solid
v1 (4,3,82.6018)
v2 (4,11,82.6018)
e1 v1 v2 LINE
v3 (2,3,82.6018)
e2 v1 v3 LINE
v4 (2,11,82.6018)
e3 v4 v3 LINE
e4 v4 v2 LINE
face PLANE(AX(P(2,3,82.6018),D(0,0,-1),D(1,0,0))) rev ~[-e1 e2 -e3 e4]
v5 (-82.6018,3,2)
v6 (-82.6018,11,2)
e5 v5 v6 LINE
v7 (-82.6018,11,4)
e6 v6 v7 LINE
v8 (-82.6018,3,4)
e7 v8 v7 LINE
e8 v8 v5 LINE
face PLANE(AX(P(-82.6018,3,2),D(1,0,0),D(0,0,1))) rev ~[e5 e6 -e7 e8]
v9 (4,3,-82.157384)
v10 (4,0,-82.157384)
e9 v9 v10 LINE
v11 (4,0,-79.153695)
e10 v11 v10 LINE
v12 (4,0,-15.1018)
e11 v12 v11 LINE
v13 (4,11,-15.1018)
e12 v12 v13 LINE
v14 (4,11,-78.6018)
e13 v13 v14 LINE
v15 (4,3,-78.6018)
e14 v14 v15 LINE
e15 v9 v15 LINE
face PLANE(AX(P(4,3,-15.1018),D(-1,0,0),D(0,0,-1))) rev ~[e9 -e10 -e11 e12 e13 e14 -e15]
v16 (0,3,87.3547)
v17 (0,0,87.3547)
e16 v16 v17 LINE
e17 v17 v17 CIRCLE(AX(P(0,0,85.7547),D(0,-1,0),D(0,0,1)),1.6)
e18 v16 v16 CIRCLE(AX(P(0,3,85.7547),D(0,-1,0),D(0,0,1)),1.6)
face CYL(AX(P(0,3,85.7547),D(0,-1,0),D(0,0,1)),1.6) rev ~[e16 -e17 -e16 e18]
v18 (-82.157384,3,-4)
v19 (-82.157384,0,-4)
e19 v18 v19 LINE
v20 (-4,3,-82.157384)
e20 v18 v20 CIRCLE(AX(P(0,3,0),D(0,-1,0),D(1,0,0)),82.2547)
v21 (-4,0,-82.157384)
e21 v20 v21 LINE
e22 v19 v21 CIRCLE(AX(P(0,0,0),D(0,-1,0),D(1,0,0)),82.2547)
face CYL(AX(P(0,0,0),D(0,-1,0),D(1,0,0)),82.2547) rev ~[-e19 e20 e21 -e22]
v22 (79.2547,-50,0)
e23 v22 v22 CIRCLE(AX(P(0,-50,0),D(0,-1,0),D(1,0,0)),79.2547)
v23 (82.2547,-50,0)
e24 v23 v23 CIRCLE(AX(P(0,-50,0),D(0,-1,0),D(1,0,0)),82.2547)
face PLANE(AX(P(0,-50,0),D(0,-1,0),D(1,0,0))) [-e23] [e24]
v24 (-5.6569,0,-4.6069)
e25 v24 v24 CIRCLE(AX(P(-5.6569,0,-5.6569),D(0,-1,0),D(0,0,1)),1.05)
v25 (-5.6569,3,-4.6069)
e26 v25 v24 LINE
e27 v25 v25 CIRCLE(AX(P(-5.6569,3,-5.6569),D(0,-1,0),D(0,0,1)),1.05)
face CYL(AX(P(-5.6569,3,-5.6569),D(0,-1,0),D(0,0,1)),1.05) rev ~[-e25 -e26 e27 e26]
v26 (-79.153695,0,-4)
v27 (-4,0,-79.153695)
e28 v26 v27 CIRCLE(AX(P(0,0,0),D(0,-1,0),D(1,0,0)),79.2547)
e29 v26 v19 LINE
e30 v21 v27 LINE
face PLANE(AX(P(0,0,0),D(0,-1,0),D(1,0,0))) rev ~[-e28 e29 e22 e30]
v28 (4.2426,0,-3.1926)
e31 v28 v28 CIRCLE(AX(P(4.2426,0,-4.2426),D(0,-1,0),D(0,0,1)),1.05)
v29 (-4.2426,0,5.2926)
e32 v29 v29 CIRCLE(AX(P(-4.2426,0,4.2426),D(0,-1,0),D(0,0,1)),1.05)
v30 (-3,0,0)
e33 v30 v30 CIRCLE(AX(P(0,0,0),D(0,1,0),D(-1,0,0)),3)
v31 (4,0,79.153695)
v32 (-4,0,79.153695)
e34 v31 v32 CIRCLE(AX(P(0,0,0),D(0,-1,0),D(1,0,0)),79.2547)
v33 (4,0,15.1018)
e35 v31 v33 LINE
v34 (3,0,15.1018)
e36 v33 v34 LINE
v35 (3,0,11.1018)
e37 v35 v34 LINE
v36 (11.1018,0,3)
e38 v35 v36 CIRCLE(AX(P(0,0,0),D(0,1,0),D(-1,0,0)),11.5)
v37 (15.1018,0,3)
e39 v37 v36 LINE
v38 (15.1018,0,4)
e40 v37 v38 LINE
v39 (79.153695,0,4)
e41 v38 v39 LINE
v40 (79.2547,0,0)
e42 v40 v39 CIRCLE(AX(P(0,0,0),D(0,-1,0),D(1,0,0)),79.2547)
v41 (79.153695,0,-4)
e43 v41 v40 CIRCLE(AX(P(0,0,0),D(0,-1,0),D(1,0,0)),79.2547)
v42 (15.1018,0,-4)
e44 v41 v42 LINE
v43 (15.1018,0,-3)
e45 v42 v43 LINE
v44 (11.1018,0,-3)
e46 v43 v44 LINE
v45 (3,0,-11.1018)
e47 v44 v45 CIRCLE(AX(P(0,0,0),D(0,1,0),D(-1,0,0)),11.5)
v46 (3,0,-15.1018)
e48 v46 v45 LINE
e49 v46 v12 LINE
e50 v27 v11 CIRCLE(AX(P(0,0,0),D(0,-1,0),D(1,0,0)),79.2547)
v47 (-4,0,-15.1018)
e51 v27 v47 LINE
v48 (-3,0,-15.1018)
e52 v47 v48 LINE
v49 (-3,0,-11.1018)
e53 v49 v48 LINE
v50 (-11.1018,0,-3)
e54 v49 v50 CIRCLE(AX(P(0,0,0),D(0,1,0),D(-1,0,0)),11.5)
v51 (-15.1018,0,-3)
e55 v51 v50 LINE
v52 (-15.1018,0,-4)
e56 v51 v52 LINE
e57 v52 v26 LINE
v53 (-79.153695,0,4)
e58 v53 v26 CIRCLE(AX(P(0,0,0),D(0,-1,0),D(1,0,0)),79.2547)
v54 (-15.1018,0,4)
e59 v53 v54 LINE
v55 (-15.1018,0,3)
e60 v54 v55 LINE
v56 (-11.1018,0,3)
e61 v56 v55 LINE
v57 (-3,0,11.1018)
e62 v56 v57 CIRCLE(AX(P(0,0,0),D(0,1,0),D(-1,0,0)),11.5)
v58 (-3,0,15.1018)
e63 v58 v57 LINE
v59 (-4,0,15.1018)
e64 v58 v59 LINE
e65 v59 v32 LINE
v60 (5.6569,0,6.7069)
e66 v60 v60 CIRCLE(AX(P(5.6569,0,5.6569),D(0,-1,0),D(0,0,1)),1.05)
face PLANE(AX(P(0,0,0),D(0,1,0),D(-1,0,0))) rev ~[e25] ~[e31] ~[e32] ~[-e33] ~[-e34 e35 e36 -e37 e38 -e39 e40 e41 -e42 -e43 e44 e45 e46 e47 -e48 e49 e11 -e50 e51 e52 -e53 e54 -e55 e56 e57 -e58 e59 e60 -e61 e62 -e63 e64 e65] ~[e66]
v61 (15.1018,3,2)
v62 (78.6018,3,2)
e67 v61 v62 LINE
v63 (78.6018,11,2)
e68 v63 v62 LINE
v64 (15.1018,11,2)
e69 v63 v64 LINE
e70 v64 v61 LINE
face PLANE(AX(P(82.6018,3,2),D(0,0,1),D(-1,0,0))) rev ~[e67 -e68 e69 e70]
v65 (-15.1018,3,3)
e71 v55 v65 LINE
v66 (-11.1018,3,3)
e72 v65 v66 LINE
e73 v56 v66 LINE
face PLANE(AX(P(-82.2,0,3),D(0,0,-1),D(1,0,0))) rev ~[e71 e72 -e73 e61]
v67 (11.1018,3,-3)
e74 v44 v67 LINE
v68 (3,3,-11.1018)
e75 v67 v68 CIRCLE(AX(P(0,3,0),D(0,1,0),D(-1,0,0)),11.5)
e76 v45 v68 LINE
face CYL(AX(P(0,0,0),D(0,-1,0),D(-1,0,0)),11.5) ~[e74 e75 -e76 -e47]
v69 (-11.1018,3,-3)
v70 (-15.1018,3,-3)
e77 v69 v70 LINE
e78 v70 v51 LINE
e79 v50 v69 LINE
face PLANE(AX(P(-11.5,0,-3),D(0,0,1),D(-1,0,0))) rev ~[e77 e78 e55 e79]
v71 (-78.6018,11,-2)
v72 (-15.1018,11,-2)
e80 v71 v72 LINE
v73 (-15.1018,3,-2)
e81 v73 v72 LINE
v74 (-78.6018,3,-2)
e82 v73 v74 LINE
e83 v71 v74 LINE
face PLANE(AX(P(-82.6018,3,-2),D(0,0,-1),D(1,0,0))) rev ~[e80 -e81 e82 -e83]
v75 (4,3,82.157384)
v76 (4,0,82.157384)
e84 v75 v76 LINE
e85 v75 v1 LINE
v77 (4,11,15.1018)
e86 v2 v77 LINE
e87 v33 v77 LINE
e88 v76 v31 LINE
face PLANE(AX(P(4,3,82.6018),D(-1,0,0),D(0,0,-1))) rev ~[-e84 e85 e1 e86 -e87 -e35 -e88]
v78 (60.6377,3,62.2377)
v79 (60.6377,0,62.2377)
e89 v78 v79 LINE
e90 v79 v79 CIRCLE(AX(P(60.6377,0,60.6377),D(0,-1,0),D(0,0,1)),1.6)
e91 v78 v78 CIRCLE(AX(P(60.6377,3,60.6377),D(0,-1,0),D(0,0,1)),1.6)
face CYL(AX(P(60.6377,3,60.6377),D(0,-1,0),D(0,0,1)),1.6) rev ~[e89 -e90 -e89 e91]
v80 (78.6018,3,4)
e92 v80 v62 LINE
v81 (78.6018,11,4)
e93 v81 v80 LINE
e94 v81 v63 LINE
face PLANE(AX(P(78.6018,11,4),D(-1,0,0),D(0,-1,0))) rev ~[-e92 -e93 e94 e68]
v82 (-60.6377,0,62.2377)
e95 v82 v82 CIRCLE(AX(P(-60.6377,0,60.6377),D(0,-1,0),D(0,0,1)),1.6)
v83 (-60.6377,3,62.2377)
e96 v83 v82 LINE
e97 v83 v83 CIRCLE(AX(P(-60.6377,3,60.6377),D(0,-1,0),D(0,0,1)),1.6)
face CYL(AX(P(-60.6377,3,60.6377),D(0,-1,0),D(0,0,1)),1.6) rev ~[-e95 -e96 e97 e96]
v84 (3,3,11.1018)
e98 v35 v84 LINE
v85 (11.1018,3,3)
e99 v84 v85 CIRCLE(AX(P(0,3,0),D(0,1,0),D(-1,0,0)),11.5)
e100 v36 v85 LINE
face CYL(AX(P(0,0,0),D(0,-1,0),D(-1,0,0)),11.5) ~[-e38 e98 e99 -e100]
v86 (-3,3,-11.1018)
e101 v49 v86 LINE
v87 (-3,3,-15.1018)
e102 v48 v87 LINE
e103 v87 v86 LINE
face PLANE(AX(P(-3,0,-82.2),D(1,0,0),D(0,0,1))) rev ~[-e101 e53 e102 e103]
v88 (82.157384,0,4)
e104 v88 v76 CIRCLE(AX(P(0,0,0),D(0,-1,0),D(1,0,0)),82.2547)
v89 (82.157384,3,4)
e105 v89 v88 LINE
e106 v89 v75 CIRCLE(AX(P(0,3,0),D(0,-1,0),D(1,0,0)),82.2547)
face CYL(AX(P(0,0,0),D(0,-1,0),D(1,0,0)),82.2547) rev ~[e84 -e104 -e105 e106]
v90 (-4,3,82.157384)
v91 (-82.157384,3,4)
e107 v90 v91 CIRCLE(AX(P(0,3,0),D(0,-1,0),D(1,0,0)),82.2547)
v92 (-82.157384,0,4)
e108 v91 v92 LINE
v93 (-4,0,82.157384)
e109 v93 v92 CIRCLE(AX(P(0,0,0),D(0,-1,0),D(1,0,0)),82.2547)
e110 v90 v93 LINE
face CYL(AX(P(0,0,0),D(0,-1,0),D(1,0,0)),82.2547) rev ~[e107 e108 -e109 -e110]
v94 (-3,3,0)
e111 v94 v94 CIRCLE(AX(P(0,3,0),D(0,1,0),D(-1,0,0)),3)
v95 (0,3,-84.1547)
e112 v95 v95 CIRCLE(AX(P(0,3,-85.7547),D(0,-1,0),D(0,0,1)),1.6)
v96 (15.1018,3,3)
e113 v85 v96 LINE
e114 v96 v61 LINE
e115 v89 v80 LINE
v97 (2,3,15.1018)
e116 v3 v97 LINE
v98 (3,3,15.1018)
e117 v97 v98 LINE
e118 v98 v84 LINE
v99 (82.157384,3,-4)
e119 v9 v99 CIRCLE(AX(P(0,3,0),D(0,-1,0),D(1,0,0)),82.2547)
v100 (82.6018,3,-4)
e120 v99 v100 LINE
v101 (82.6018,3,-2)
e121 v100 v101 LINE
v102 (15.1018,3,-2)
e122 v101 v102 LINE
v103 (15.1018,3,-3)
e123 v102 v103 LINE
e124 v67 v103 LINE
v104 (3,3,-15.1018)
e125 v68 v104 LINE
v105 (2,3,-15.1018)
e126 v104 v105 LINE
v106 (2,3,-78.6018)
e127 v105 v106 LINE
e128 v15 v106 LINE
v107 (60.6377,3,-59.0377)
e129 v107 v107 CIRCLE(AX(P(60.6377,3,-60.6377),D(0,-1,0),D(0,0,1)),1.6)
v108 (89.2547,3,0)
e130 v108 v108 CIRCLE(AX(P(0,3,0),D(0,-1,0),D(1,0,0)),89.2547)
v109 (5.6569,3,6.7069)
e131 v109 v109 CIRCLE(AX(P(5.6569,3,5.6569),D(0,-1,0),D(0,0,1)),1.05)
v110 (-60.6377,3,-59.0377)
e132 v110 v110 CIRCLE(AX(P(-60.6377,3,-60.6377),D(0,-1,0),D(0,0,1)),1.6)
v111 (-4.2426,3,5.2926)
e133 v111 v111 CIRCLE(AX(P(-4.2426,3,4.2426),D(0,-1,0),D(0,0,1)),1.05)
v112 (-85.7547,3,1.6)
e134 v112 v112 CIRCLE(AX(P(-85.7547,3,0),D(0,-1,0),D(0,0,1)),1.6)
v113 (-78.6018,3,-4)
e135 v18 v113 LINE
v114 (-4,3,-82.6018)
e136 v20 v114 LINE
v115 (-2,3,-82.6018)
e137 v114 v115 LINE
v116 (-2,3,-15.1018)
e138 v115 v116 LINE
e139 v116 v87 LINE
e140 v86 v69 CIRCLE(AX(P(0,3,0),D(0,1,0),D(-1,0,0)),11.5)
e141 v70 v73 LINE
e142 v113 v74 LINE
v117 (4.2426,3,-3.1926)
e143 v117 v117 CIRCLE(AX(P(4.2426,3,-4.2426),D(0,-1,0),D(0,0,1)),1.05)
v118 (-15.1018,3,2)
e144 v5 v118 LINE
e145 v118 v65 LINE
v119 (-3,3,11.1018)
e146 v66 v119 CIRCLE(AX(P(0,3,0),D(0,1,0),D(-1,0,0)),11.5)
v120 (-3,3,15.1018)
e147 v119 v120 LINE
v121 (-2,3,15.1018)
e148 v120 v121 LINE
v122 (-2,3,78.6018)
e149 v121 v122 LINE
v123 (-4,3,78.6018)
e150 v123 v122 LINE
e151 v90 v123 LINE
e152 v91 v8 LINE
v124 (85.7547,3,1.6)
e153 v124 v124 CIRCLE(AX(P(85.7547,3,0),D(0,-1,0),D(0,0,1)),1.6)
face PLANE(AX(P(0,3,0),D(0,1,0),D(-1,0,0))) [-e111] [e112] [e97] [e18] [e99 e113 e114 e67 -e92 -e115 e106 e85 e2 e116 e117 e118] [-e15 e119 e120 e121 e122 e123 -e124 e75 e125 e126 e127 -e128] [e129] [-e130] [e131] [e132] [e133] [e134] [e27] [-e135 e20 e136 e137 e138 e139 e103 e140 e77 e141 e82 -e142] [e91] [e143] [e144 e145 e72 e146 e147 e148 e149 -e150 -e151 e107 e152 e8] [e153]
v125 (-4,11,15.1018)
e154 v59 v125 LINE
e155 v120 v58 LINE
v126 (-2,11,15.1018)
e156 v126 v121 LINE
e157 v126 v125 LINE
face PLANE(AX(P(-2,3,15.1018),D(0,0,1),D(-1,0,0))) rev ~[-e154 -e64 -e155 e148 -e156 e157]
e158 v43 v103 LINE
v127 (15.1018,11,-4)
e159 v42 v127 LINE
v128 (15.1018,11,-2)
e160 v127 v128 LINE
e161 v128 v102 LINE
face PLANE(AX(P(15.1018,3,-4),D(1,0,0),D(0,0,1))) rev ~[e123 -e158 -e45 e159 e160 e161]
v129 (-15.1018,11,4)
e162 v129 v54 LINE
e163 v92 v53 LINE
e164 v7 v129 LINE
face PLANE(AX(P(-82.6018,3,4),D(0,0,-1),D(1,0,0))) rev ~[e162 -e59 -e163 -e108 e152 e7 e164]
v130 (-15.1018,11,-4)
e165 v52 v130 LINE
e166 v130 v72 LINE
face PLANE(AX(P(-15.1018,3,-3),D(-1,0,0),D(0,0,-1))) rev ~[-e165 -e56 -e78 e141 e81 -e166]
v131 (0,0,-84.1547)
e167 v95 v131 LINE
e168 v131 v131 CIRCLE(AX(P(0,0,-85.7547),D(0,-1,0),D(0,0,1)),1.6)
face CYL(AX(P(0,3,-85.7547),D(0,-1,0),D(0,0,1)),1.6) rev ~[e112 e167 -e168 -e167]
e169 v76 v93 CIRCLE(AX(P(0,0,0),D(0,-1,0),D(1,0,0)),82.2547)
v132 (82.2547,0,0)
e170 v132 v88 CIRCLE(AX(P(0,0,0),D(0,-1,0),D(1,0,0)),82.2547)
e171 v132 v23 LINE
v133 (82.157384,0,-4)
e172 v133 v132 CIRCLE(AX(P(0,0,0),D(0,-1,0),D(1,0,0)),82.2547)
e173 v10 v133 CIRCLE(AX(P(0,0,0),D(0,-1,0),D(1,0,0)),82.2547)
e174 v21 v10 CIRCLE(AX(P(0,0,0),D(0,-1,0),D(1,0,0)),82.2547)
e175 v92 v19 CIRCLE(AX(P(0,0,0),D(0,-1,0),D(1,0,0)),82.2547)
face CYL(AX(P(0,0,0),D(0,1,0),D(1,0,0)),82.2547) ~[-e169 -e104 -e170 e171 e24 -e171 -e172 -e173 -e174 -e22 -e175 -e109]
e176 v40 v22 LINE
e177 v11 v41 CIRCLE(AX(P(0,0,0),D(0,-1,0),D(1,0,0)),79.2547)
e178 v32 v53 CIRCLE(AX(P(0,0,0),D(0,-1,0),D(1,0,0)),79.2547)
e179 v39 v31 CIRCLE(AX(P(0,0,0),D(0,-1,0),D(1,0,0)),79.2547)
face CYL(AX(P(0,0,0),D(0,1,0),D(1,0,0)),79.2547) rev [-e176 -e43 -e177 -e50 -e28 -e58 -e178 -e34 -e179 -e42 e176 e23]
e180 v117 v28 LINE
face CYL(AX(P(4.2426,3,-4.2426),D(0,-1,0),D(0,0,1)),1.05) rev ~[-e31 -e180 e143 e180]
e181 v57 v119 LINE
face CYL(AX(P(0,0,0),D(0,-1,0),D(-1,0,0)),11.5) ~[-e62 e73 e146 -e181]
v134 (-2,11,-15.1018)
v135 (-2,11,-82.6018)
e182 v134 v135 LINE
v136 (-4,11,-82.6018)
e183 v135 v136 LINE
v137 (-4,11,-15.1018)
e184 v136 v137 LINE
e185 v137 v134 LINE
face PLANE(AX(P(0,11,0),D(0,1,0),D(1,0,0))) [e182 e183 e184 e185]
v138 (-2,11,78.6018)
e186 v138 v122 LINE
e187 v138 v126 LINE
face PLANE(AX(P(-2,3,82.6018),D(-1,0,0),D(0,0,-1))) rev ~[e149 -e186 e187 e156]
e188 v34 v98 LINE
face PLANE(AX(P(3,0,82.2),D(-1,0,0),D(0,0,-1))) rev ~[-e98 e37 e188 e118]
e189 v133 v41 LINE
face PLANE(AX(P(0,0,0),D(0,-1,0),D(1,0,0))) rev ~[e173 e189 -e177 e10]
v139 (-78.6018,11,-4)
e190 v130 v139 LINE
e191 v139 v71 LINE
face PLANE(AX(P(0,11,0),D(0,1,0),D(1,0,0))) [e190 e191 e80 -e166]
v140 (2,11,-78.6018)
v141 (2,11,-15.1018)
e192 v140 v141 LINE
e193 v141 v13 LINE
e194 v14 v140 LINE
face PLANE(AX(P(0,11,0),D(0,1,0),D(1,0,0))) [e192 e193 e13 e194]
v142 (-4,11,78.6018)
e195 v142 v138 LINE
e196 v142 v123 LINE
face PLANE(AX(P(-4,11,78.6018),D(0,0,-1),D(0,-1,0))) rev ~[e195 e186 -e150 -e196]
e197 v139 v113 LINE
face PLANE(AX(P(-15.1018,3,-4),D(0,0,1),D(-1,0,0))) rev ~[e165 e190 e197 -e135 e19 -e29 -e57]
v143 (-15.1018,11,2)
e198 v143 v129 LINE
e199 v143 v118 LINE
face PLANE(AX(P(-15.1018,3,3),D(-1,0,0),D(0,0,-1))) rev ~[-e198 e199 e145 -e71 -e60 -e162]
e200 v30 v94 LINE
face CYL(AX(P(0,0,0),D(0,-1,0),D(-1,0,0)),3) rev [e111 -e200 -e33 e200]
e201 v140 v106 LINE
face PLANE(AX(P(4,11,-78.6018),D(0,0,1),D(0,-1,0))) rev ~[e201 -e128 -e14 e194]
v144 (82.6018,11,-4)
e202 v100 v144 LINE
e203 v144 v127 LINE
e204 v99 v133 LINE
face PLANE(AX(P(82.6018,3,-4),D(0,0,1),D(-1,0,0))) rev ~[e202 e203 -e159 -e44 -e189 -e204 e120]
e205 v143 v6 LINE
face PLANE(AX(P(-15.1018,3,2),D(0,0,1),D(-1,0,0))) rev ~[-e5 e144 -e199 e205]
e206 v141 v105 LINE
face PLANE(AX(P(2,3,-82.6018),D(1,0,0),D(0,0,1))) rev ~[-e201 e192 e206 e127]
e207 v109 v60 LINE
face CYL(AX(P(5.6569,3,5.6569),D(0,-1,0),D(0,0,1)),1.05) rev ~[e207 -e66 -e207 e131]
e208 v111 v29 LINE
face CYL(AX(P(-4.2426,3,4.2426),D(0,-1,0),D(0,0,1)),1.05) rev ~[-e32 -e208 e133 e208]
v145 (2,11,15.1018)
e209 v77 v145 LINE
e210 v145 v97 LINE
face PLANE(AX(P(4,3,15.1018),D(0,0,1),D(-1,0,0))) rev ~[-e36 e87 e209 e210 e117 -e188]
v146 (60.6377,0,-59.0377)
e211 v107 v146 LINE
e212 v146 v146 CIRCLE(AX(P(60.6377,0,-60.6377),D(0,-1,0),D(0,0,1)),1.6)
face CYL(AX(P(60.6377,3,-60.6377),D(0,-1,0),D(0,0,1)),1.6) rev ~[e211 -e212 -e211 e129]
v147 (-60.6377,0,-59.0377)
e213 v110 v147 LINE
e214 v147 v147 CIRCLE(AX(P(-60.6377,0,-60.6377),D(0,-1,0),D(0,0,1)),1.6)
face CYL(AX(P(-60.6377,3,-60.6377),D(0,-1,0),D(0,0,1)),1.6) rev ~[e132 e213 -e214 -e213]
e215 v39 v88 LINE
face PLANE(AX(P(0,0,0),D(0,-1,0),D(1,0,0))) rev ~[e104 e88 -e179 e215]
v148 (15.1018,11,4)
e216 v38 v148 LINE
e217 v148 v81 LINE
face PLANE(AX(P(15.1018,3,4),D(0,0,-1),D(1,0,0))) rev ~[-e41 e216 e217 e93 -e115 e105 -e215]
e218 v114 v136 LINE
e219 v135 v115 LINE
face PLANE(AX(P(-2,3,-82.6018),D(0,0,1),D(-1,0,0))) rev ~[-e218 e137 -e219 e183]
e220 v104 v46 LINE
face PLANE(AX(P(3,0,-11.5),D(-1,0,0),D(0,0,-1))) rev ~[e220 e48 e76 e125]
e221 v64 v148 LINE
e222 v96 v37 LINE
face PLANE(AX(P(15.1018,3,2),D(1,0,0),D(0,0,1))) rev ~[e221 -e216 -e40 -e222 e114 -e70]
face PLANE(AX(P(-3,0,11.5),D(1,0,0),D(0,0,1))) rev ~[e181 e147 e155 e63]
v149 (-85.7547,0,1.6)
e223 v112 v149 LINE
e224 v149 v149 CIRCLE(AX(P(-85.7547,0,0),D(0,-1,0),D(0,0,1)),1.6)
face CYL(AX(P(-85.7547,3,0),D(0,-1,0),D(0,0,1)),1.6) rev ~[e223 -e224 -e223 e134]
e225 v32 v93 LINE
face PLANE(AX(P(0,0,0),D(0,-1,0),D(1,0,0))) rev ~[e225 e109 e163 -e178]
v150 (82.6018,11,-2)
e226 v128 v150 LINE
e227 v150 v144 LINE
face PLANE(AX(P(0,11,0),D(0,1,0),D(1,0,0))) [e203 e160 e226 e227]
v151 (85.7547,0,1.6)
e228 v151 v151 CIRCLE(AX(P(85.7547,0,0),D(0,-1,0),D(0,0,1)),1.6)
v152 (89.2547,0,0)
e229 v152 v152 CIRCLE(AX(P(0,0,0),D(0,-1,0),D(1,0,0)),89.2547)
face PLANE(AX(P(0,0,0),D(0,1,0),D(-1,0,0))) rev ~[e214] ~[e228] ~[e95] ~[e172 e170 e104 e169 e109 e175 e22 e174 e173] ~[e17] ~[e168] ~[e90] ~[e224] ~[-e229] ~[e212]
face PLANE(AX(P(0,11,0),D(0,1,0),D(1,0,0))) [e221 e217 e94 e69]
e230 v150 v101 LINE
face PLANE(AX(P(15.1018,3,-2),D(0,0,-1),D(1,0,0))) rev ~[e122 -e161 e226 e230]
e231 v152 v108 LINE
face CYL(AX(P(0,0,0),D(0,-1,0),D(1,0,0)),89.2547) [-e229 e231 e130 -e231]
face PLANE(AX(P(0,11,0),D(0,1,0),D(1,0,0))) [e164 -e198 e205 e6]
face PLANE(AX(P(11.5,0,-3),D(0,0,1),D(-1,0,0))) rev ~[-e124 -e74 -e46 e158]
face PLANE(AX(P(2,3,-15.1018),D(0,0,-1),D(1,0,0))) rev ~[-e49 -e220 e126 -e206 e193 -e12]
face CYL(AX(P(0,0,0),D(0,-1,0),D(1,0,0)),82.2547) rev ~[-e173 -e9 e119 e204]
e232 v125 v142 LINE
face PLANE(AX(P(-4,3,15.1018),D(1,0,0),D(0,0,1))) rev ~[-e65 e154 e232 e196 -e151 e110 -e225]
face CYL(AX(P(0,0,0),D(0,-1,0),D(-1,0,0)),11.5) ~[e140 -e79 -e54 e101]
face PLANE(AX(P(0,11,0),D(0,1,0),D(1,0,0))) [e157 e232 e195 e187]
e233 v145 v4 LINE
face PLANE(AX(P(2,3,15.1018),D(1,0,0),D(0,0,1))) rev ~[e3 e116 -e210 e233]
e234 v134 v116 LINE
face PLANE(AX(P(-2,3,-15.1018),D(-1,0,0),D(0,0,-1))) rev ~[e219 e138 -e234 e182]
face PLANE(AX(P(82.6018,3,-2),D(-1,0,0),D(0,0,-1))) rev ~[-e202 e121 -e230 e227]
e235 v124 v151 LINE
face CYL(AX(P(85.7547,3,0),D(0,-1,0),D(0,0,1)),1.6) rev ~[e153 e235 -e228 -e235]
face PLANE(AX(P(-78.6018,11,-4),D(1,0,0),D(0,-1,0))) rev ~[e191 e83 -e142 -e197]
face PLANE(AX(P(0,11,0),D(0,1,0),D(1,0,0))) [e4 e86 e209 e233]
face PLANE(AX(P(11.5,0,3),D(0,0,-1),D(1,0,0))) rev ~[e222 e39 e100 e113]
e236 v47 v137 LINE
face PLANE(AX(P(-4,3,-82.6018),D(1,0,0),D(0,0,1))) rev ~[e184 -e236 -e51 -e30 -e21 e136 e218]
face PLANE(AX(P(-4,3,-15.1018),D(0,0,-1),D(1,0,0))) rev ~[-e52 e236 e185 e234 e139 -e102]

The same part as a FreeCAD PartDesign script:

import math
import FreeCAD as App
import Part
import Sketcher
from FreeCAD import Vector


def add_polygon(sketch, points):
    """Adds a closed chain of lines whose ends are joined by coincident constraints."""
    first, n = sketch.GeometryCount, len(points)
    for a, b in zip(points, points[1:] + points[:1]):
        sketch.addGeometry(Part.LineSegment(App.Vector(*a, 0), App.Vector(*b, 0)), False)
    for i in range(n):
        sketch.addConstraint(Sketcher.Constraint("Coincident", first + i, 2, first + (i + 1) % n, 1))

doc = App.newDocument("Part")
body = doc.addObject("PartDesign::Body", "Body")

sketch1 = doc.addObject("Sketcher::SketchObject", "Sketch")
body.addObject(sketch1)
sketch1.AttachmentSupport = (doc.XZ_Plane, [""])
sketch1.MapMode = "FlatFace"
sketch1.addGeometry(Part.Circle(Vector(0, 0, 0), Vector(0, 0, 1), 11.5), False)
sketch1.addGeometry(Part.Circle(Vector(0, 0, 0), Vector(0, 0, 1), 3), False)
sketch1.addConstraint(Sketcher.Constraint("Coincident", 0, 3, -1, 1))
sketch1.addConstraint(Sketcher.Constraint("Coincident", 1, 3, -1, 1))
sketch1.addConstraint(Sketcher.Constraint("Diameter", 0, 23.0))
sketch1.addConstraint(Sketcher.Constraint("Diameter", 1, 6.0))
pad1 = doc.addObject("PartDesign::Pad", "Pad")
body.addObject(pad1)
pad1.Profile = sketch1
pad1.Length = 3
pad1.Reversed = True

sketch2 = doc.addObject("Sketcher::SketchObject", "Sketch001")
body.addObject(sketch2)
sketch2.AttachmentSupport = (doc.XZ_Plane, [""])
sketch2.MapMode = "FlatFace"
sketch2.addGeometry(Part.Circle(Vector(0, 0, 0), Vector(0, 0, 1), 89.2547), False)
sketch2.addGeometry(Part.LineSegment(Vector(11.1018, -3, 0), Vector(82.2, -3, 0)), False)
sketch2.addGeometry(Part.ArcOfCircle(Part.Circle(Vector(0, 0, 0), Vector(0, 0, 1), 82.2547), math.radians(-87.909841), math.radians(-2.090159)), False)
sketch2.addGeometry(Part.LineSegment(Vector(3, -82.2, 0), Vector(3, -11.1018, 0)), False)
sketch2.addGeometry(Part.ArcOfCircle(Part.Circle(Vector(0, 0, 0), Vector(0, 0, 1), 11.5), math.radians(-105.121667), math.radians(-74.878333)), False)
sketch2.addGeometry(Part.LineSegment(Vector(-3, -11.1018, 0), Vector(-3, -82.2, 0)), False)
sketch2.addGeometry(Part.ArcOfCircle(Part.Circle(Vector(0, 0, 0), Vector(0, 0, 1), 82.2547), math.radians(-177.909841), math.radians(-92.090159)), False)
sketch2.addGeometry(Part.LineSegment(Vector(-82.2, -3, 0), Vector(-11.1018, -3, 0)), False)
sketch2.addGeometry(Part.ArcOfCircle(Part.Circle(Vector(0, 0, 0), Vector(0, 0, 1), 11.5), math.radians(164.878333), math.radians(195.121667)), False)
sketch2.addGeometry(Part.LineSegment(Vector(-11.1018, 3, 0), Vector(-82.2, 3, 0)), False)
sketch2.addGeometry(Part.ArcOfCircle(Part.Circle(Vector(0, 0, 0), Vector(0, 0, 1), 82.2547), math.radians(92.090159), math.radians(177.909841)), False)
sketch2.addGeometry(Part.LineSegment(Vector(-3, 82.2, 0), Vector(-3, 11.1018, 0)), False)
sketch2.addGeometry(Part.ArcOfCircle(Part.Circle(Vector(0, 0, 0), Vector(0, 0, 1), 11.5), math.radians(74.878333), math.radians(105.121667)), False)
sketch2.addGeometry(Part.LineSegment(Vector(3, 11.1018, 0), Vector(3, 82.2, 0)), False)
sketch2.addGeometry(Part.ArcOfCircle(Part.Circle(Vector(0, 0, 0), Vector(0, 0, 1), 82.2547), math.radians(2.090159), math.radians(87.909841)), False)
sketch2.addGeometry(Part.LineSegment(Vector(82.2, 3, 0), Vector(11.1018, 3, 0)), False)
sketch2.addGeometry(Part.ArcOfCircle(Part.Circle(Vector(0, 0, 0), Vector(0, 0, 1), 11.5), math.radians(-15.121667), math.radians(15.121667)), False)
sketch2.addConstraint(Sketcher.Constraint("Coincident", 1, 2, 2, 2))
sketch2.addConstraint(Sketcher.Constraint("Coincident", 2, 1, 3, 1))
sketch2.addConstraint(Sketcher.Constraint("Coincident", 3, 2, 4, 2))
sketch2.addConstraint(Sketcher.Constraint("Coincident", 4, 1, 5, 1))
sketch2.addConstraint(Sketcher.Constraint("Coincident", 5, 2, 6, 2))
sketch2.addConstraint(Sketcher.Constraint("Coincident", 6, 1, 7, 1))
sketch2.addConstraint(Sketcher.Constraint("Coincident", 7, 2, 8, 2))
sketch2.addConstraint(Sketcher.Constraint("Coincident", 8, 1, 9, 1))
sketch2.addConstraint(Sketcher.Constraint("Coincident", 9, 2, 10, 2))
sketch2.addConstraint(Sketcher.Constraint("Coincident", 10, 1, 11, 1))
sketch2.addConstraint(Sketcher.Constraint("Coincident", 11, 2, 12, 2))
sketch2.addConstraint(Sketcher.Constraint("Coincident", 12, 1, 13, 1))
sketch2.addConstraint(Sketcher.Constraint("Coincident", 13, 2, 14, 2))
sketch2.addConstraint(Sketcher.Constraint("Coincident", 14, 1, 15, 1))
sketch2.addConstraint(Sketcher.Constraint("Coincident", 15, 2, 16, 2))
sketch2.addConstraint(Sketcher.Constraint("Coincident", 16, 1, 1, 1))
sketch2.addConstraint(Sketcher.Constraint("Horizontal", 1))
sketch2.addConstraint(Sketcher.Constraint("Vertical", 3))
sketch2.addConstraint(Sketcher.Constraint("Vertical", 5))
sketch2.addConstraint(Sketcher.Constraint("Horizontal", 7))
sketch2.addConstraint(Sketcher.Constraint("Horizontal", 9))
sketch2.addConstraint(Sketcher.Constraint("Vertical", 11))
sketch2.addConstraint(Sketcher.Constraint("Vertical", 13))
sketch2.addConstraint(Sketcher.Constraint("Horizontal", 15))
sketch2.addConstraint(Sketcher.Constraint("Coincident", 0, 3, -1, 1))
sketch2.addConstraint(Sketcher.Constraint("Coincident", 2, 3, -1, 1))
sketch2.addConstraint(Sketcher.Constraint("Coincident", 4, 3, -1, 1))
sketch2.addConstraint(Sketcher.Constraint("Coincident", 6, 3, -1, 1))
sketch2.addConstraint(Sketcher.Constraint("Coincident", 8, 3, -1, 1))
sketch2.addConstraint(Sketcher.Constraint("Coincident", 10, 3, -1, 1))
sketch2.addConstraint(Sketcher.Constraint("Coincident", 12, 3, -1, 1))
sketch2.addConstraint(Sketcher.Constraint("Coincident", 14, 3, -1, 1))
sketch2.addConstraint(Sketcher.Constraint("Coincident", 16, 3, -1, 1))
sketch2.addConstraint(Sketcher.Constraint("Equal", 2, 6))
sketch2.addConstraint(Sketcher.Constraint("Equal", 4, 8))
sketch2.addConstraint(Sketcher.Constraint("Equal", 6, 10))
sketch2.addConstraint(Sketcher.Constraint("Equal", 8, 12))
sketch2.addConstraint(Sketcher.Constraint("Equal", 10, 14))
sketch2.addConstraint(Sketcher.Constraint("Equal", 12, 16))
sketch2.addConstraint(Sketcher.Constraint("Horizontal", 3, 2, 4, 1))
sketch2.addConstraint(Sketcher.Constraint("Horizontal", 1, 2, 6, 1))
sketch2.addConstraint(Sketcher.Constraint("Horizontal", 11, 2, 12, 1))
sketch2.addConstraint(Sketcher.Constraint("Horizontal", 9, 2, 14, 1))
sketch2.addConstraint(Sketcher.Constraint("Vertical", 7, 2, 8, 1))
sketch2.addConstraint(Sketcher.Constraint("Vertical", 5, 2, 10, 1))
sketch2.addConstraint(Sketcher.Constraint("Equal", 15, 3))
sketch2.addConstraint(Sketcher.Constraint("DistanceY", 1, 2, -1, 1, 3.0))
sketch2.addConstraint(Sketcher.Constraint("Radius", 4, 11.5))
sketch2.addConstraint(Sketcher.Constraint("Diameter", 0, 178.5094))
sketch2.addConstraint(Sketcher.Constraint("DistanceX", -1, 1, 1, 2, 82.2))
pad2 = doc.addObject("PartDesign::Pad", "Pad001")
body.addObject(pad2)
pad2.Profile = sketch2
pad2.Length = 3
pad2.Reversed = True

sketch3 = doc.addObject("Sketcher::SketchObject", "Sketch002")
body.addObject(sketch3)
sketch3.AttachmentSupport = (doc.XZ_Plane, [""])
sketch3.MapMode = "FlatFace"
sketch3.AttachmentOffset = App.Placement(Vector(0, 0, -3), App.Rotation())
sketch3.addGeometry(Part.Circle(Vector(60.6377, -60.6377, 0), Vector(0, 0, 1), 1.6), False)
sketch3.addGeometry(Part.Circle(Vector(0, -85.7547, 0), Vector(0, 0, 1), 1.6), False)
sketch3.addGeometry(Part.Circle(Vector(-60.6377, -60.6377, 0), Vector(0, 0, 1), 1.6), False)
sketch3.addGeometry(Part.Circle(Vector(-85.7547, 0, 0), Vector(0, 0, 1), 1.6), False)
sketch3.addGeometry(Part.Circle(Vector(85.7547, 0, 0), Vector(0, 0, 1), 1.6), False)
sketch3.addGeometry(Part.Circle(Vector(-60.6377, 60.6377, 0), Vector(0, 0, 1), 1.6), False)
sketch3.addGeometry(Part.Circle(Vector(0, 85.7547, 0), Vector(0, 0, 1), 1.6), False)
sketch3.addGeometry(Part.Circle(Vector(60.6377, 60.6377, 0), Vector(0, 0, 1), 1.6), False)
sketch3.addConstraint(Sketcher.Constraint("Equal", 0, 1))
sketch3.addConstraint(Sketcher.Constraint("Equal", 1, 2))
sketch3.addConstraint(Sketcher.Constraint("Equal", 2, 3))
sketch3.addConstraint(Sketcher.Constraint("Equal", 3, 4))
sketch3.addConstraint(Sketcher.Constraint("Equal", 4, 5))
sketch3.addConstraint(Sketcher.Constraint("Equal", 5, 6))
sketch3.addConstraint(Sketcher.Constraint("Equal", 6, 7))
sketch3.addConstraint(Sketcher.Constraint("Symmetric", 3, 3, 4, 3, -1, 1))
sketch3.addConstraint(Sketcher.Constraint("Symmetric", 0, 3, 5, 3, -1, 1))
sketch3.addConstraint(Sketcher.Constraint("Symmetric", 1, 3, 6, 3, -1, 1))
sketch3.addConstraint(Sketcher.Constraint("Symmetric", 2, 3, 7, 3, -1, 1))
sketch3.addConstraint(Sketcher.Constraint("Symmetric", 0, 3, 2, 3, -2))
sketch3.addConstraint(Sketcher.Constraint("PointOnObject", 1, 3, -2))
sketch3.addConstraint(Sketcher.Constraint("PointOnObject", 3, 3, -1))
sketch3.addConstraint(Sketcher.Constraint("Diameter", 0, 3.2))
sketch3.addConstraint(Sketcher.Constraint("DistanceY", 1, 3, 0, 3, 25.117))
sketch3.addConstraint(Sketcher.Constraint("DistanceX", 3, 3, 2, 3, 25.117))
sketch3.addConstraint(Sketcher.Constraint("DistanceX", -1, 1, 0, 3, 60.6377))
sketch3.addConstraint(Sketcher.Constraint("DistanceY", 0, 3, -1, 1, 60.6377))
doc.recompute()
hole = doc.addObject("PartDesign::Hole", "Hole")
body.addObject(hole)
hole.Profile = sketch3
hole.ThreadType = "None"
hole.Diameter = 3.2
hole.DepthType = "ThroughAll"
hole.Reversed = True

sketch4 = doc.addObject("Sketcher::SketchObject", "Sketch003")
body.addObject(sketch4)
sketch4.AttachmentSupport = (doc.XZ_Plane, [""])
sketch4.MapMode = "FlatFace"
sketch4.AttachmentOffset = App.Placement(Vector(0, 0, -3), App.Rotation())
sketch4.addGeometry(Part.Circle(Vector(5.6569, 5.6569, 0), Vector(0, 0, 1), 1.05), False)
sketch4.addGeometry(Part.Circle(Vector(4.2426, -4.2426, 0), Vector(0, 0, 1), 1.05), False)
sketch4.addGeometry(Part.Circle(Vector(-5.6569, -5.6569, 0), Vector(0, 0, 1), 1.05), False)
sketch4.addGeometry(Part.Circle(Vector(-4.2426, 4.2426, 0), Vector(0, 0, 1), 1.05), False)
sketch4.addConstraint(Sketcher.Constraint("Equal", 0, 1))
sketch4.addConstraint(Sketcher.Constraint("Equal", 1, 2))
sketch4.addConstraint(Sketcher.Constraint("Equal", 2, 3))
sketch4.addConstraint(Sketcher.Constraint("Symmetric", 0, 3, 2, 3, -1, 1))
sketch4.addConstraint(Sketcher.Constraint("Symmetric", 1, 3, 3, 3, -1, 1))
sketch4.addConstraint(Sketcher.Constraint("Diameter", 0, 2.1))
sketch4.addConstraint(Sketcher.Constraint("DistanceX", -1, 1, 0, 3, 5.657))
sketch4.addConstraint(Sketcher.Constraint("DistanceY", -1, 1, 0, 3, 5.657))
sketch4.addConstraint(Sketcher.Constraint("DistanceX", -1, 1, 1, 3, 4.2426))
sketch4.addConstraint(Sketcher.Constraint("DistanceY", 1, 3, -1, 1, 4.2426))
doc.recompute()
hole2 = doc.addObject("PartDesign::Hole", "Hole001")
body.addObject(hole2)
hole2.Profile = sketch4
hole2.ThreadType = "None"
hole2.Diameter = 2.1
hole2.DepthType = "ThroughAll"
hole2.Reversed = True

sketch5 = doc.addObject("Sketcher::SketchObject", "Sketch004")
body.addObject(sketch5)
sketch5.AttachmentSupport = (doc.XZ_Plane, [""])
sketch5.MapMode = "FlatFace"
sketch5.AttachmentOffset = App.Placement(Vector(0, 0, -3), App.Rotation())
add_polygon(sketch5, [(-82.6018, -2), (-15.1018, -2), (-15.1018, -4), (-82.6018, -4)])
add_polygon(sketch5, [(-2, 15.1018), (-4, 15.1018), (-4, 82.6018), (-2, 82.6018)])
add_polygon(sketch5, [(15.1018, 2), (15.1018, 4), (82.6018, 4), (82.6018, 2)])
add_polygon(sketch5, [(2, -15.1018), (4, -15.1018), (4, -82.6018), (2, -82.6018)])
add_polygon(sketch5, [(-15.1018, 2), (-82.6018, 2), (-82.6018, 4), (-15.1018, 4)])
add_polygon(sketch5, [(2, 82.6018), (4, 82.6018), (4, 15.1018), (2, 15.1018)])
add_polygon(sketch5, [(82.6018, -2), (82.6018, -4), (15.1018, -4), (15.1018, -2)])
add_polygon(sketch5, [(-2, -82.6018), (-4, -82.6018), (-4, -15.1018), (-2, -15.1018)])
sketch5.addConstraint(Sketcher.Constraint("Horizontal", 0))
sketch5.addConstraint(Sketcher.Constraint("Vertical", 1))
sketch5.addConstraint(Sketcher.Constraint("Horizontal", 2))
sketch5.addConstraint(Sketcher.Constraint("Vertical", 3))
sketch5.addConstraint(Sketcher.Constraint("Horizontal", 4))
sketch5.addConstraint(Sketcher.Constraint("Vertical", 5))
sketch5.addConstraint(Sketcher.Constraint("Horizontal", 6))
sketch5.addConstraint(Sketcher.Constraint("Vertical", 7))
sketch5.addConstraint(Sketcher.Constraint("Vertical", 8))
sketch5.addConstraint(Sketcher.Constraint("Horizontal", 9))
sketch5.addConstraint(Sketcher.Constraint("Vertical", 10))
sketch5.addConstraint(Sketcher.Constraint("Horizontal", 11))
sketch5.addConstraint(Sketcher.Constraint("Horizontal", 12))
sketch5.addConstraint(Sketcher.Constraint("Vertical", 13))
sketch5.addConstraint(Sketcher.Constraint("Horizontal", 14))
sketch5.addConstraint(Sketcher.Constraint("Vertical", 15))
sketch5.addConstraint(Sketcher.Constraint("Horizontal", 16))
sketch5.addConstraint(Sketcher.Constraint("Vertical", 17))
sketch5.addConstraint(Sketcher.Constraint("Horizontal", 18))
sketch5.addConstraint(Sketcher.Constraint("Vertical", 19))
sketch5.addConstraint(Sketcher.Constraint("Horizontal", 20))
sketch5.addConstraint(Sketcher.Constraint("Vertical", 21))
sketch5.addConstraint(Sketcher.Constraint("Horizontal", 22))
sketch5.addConstraint(Sketcher.Constraint("Vertical", 23))
sketch5.addConstraint(Sketcher.Constraint("Vertical", 24))
sketch5.addConstraint(Sketcher.Constraint("Horizontal", 25))
sketch5.addConstraint(Sketcher.Constraint("Vertical", 26))
sketch5.addConstraint(Sketcher.Constraint("Horizontal", 27))
sketch5.addConstraint(Sketcher.Constraint("Horizontal", 28))
sketch5.addConstraint(Sketcher.Constraint("Vertical", 29))
sketch5.addConstraint(Sketcher.Constraint("Horizontal", 30))
sketch5.addConstraint(Sketcher.Constraint("Vertical", 31))
sketch5.addConstraint(Sketcher.Constraint("Symmetric", 1, 2, 8, 2, -1, 1))
sketch5.addConstraint(Sketcher.Constraint("Symmetric", 3, 2, 10, 2, -1, 1))
sketch5.addConstraint(Sketcher.Constraint("Symmetric", 4, 2, 12, 2, -1, 1))
sketch5.addConstraint(Sketcher.Constraint("Symmetric", 6, 2, 14, 2, -1, 1))
sketch5.addConstraint(Sketcher.Constraint("Symmetric", 17, 2, 24, 2, -1, 1))
sketch5.addConstraint(Sketcher.Constraint("Symmetric", 19, 2, 26, 2, -1, 1))
sketch5.addConstraint(Sketcher.Constraint("Symmetric", 20, 2, 28, 2, -1, 1))
sketch5.addConstraint(Sketcher.Constraint("Symmetric", 22, 2, 30, 2, -1, 1))
sketch5.addConstraint(Sketcher.Constraint("Symmetric", 10, 2, 16, 2, -2))
sketch5.addConstraint(Sketcher.Constraint("Symmetric", 8, 2, 18, 2, -2))
sketch5.addConstraint(Sketcher.Constraint("Symmetric", 5, 2, 20, 2, -2))
sketch5.addConstraint(Sketcher.Constraint("Symmetric", 7, 2, 22, 2, -2))
sketch5.addConstraint(Sketcher.Constraint("Equal", 30, 1))
sketch5.addConstraint(Sketcher.Constraint("Equal", 27, 5))
sketch5.addConstraint(Sketcher.Constraint("DistanceX", 4, 2, 4, 1, 2.0))
sketch5.addConstraint(Sketcher.Constraint("DistanceX", 0, 1, 0, 2, 67.5))
sketch5.addConstraint(Sketcher.Constraint("DistanceY", 0, 2, -1, 1, 2.0))
sketch5.addConstraint(Sketcher.Constraint("DistanceX", 4, 2, -1, 1, 4.0))
sketch5.addConstraint(Sketcher.Constraint("DistanceX", 0, 2, -1, 1, 15.1018))
sketch5.addConstraint(Sketcher.Constraint("DistanceY", -1, 1, 4, 2, 15.1018))
pad3 = doc.addObject("PartDesign::Pad", "Pad002")
body.addObject(pad3)
pad3.Profile = sketch5
pad3.Type = "TwoLengths"
pad3.Length = 8
pad3.Length2 = 3
pad3.Reversed = True

sketch6 = doc.addObject("Sketcher::SketchObject", "Sketch005")
body.addObject(sketch6)
sketch6.AttachmentSupport = (doc.YZ_Plane, [""])
sketch6.MapMode = "FlatFace"
sketch6.AttachmentOffset = App.Placement(Vector(0, 0, -4), App.Rotation())
add_polygon(sketch6, [(11, 82.6018), (11, 78.6018), (3, 78.6018), (3, 82.6018)])
sketch6.addConstraint(Sketcher.Constraint("Vertical", 0))
sketch6.addConstraint(Sketcher.Constraint("Horizontal", 1))
sketch6.addConstraint(Sketcher.Constraint("Vertical", 2))
sketch6.addConstraint(Sketcher.Constraint("Horizontal", 3))
sketch6.addConstraint(Sketcher.Constraint("DistanceY", 0, 2, 0, 1, 4.0))
sketch6.addConstraint(Sketcher.Constraint("DistanceX", 1, 2, 1, 1, 8.0))
sketch6.addConstraint(Sketcher.Constraint("DistanceX", -1, 1, 0, 2, 11.0))
sketch6.addConstraint(Sketcher.Constraint("DistanceY", -1, 1, 0, 2, 78.6018))
pocket1 = doc.addObject("PartDesign::Pocket", "Pocket")
body.addObject(pocket1)
pocket1.Profile = sketch6
pocket1.Length = 2
pocket1.Reversed = True
doc.recompute()

polarpattern = doc.addObject("PartDesign::PolarPattern", "PolarPattern")
body.addObject(polarpattern)
polarpattern.Originals = [pocket1]
polarpattern.Axis = (doc.Y_Axis, [""])
polarpattern.Angle = 360
polarpattern.Occurrences = 4
body.Tip = polarpattern

sketch7 = doc.addObject("Sketcher::SketchObject", "Sketch006")
body.addObject(sketch7)
sketch7.AttachmentSupport = (doc.XZ_Plane, [""])
sketch7.MapMode = "FlatFace"
sketch7.addGeometry(Part.Circle(Vector(0, 0, 0), Vector(0, 0, 1), 82.2547), False)
sketch7.addGeometry(Part.Circle(Vector(0, 0, 0), Vector(0, 0, 1), 79.2547), False)
sketch7.addConstraint(Sketcher.Constraint("Coincident", 0, 3, -1, 1))
sketch7.addConstraint(Sketcher.Constraint("Coincident", 1, 3, -1, 1))
sketch7.addConstraint(Sketcher.Constraint("Diameter", 0, 164.5094))
sketch7.addConstraint(Sketcher.Constraint("Diameter", 1, 158.5094))
pad4 = doc.addObject("PartDesign::Pad", "Pad003")
body.addObject(pad4)
pad4.Profile = sketch7
pad4.Length = 50

doc.recompute()
